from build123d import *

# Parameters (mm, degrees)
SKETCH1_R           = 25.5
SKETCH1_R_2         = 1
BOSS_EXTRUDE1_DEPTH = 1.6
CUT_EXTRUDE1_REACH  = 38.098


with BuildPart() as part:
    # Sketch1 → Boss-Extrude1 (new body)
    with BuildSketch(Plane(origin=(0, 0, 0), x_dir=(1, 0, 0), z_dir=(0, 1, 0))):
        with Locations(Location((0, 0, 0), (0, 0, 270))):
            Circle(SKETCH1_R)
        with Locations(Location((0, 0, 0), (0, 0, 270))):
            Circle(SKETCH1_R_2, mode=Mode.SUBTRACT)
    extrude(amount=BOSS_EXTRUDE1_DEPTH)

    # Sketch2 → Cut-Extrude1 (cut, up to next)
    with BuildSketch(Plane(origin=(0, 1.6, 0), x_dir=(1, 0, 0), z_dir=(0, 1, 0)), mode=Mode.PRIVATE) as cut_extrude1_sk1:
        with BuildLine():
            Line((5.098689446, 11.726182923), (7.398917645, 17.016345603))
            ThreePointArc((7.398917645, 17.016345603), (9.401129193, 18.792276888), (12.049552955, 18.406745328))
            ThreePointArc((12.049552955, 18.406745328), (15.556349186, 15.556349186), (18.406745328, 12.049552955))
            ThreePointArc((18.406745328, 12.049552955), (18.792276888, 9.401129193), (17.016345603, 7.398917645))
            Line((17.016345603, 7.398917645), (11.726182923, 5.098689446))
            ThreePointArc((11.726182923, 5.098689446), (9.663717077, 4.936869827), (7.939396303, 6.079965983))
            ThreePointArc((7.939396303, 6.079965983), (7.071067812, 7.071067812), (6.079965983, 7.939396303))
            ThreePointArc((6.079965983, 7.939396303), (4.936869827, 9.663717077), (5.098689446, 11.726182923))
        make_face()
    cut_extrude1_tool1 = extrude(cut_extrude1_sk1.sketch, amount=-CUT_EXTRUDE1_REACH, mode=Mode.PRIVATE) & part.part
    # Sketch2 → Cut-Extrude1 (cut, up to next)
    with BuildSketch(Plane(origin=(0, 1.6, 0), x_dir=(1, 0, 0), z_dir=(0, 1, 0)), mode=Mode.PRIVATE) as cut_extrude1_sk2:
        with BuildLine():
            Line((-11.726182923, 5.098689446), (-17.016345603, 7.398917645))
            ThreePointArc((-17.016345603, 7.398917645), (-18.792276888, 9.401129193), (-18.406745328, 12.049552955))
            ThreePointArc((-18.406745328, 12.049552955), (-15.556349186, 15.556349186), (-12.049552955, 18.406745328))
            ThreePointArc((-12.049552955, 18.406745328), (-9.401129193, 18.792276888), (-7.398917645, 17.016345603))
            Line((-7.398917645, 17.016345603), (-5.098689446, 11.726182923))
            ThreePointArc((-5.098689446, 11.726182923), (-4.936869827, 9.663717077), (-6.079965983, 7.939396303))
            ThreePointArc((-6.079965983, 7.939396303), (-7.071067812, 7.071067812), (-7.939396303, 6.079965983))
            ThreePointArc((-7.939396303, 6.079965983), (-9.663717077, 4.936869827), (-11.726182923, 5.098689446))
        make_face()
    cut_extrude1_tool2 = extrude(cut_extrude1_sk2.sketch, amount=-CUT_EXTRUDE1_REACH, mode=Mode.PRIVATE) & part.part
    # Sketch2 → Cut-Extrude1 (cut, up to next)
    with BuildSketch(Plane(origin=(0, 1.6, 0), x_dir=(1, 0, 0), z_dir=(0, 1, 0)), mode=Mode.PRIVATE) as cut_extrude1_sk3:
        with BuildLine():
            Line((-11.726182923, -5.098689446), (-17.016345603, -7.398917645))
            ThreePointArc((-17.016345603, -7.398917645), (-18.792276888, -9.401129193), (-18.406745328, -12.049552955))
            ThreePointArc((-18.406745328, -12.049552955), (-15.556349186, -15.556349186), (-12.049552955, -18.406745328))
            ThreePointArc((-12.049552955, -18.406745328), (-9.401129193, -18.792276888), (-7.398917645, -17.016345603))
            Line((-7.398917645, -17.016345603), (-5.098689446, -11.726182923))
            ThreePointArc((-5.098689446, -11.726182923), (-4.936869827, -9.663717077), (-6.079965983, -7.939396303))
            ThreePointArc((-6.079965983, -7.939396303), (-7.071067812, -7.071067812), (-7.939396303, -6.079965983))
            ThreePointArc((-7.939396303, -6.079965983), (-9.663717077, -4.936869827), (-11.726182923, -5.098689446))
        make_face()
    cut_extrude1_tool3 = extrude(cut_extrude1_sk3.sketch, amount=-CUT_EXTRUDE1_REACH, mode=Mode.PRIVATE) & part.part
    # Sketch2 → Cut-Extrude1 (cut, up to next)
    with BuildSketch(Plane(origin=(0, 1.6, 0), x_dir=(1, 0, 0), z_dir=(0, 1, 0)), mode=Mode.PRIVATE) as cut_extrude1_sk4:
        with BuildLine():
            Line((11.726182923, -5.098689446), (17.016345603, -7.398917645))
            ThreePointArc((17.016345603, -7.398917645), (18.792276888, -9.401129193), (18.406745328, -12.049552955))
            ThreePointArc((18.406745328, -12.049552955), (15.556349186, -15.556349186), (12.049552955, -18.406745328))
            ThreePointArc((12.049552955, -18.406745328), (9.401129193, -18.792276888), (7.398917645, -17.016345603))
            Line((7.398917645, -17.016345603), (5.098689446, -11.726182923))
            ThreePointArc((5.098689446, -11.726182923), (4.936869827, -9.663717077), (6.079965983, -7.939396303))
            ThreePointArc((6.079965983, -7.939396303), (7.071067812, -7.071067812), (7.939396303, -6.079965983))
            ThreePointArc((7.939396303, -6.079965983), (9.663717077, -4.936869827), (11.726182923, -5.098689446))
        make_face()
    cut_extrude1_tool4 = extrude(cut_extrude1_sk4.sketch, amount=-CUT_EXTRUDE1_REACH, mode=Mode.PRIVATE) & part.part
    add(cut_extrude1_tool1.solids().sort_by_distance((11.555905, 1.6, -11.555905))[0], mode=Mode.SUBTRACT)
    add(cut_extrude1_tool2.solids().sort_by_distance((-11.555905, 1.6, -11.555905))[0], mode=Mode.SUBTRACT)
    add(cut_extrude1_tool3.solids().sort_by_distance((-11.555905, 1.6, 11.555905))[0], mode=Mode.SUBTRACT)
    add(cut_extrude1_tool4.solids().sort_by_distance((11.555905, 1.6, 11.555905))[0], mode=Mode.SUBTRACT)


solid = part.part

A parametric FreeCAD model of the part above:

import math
import FreeCAD as App
import Part
import Sketcher

V = App.Vector
Q = App.Units.Quantity

doc = App.newDocument("Part")
params = doc.addObject("Spreadsheet::Sheet", "Params")
for row, (alias, value) in enumerate([
    ("sketch1_diameter", "51 mm"),
    ("sketch1_diameter2", "2 mm"),
    ("pad1_length", "1.6 mm"),
    ("sketch2_radius", "10 mm"),
    ("sketch2_radius2", "22 mm"),
    ("sketch3_radius", "10 mm"),
    ("sketch3_radius2", "22 mm"),
    ("sketch4_radius", "22 mm"),
    ("sketch4_radius2", "10 mm"),
    ("sketch5_radius", "10 mm"),
    ("sketch5_radius2", "22 mm"),
], start=1):
    params.set(f"A{row}", alias)
    params.set(f"B{row}", "=" + value)
    params.setAlias(f"B{row}", alias)

body = doc.addObject("PartDesign::Body", "Body")

sketch1 = doc.addObject("Sketcher::SketchObject", "Sketch")
body.addObject(sketch1)
sketch1.AttachmentSupport = (doc.XZ_Plane, [""])
sketch1.MapMode = "FlatFace"
sketch1.addGeometry([
    Part.Circle(V(0, 0, 0), V(0, 0, 1), 25.5),
    Part.Circle(V(0, 0, 0), V(0, 0, 1), 1),
], False)
sketch1.addConstraint([
    Sketcher.Constraint("Coincident", 0, 3, -1, 1),
    Sketcher.Constraint("Coincident", 1, 3, -1, 1),
    Sketcher.Constraint("Diameter", 0, 51.0),
    Sketcher.Constraint("Diameter", 1, 2.0),
])
sketch1.setExpression("Constraints[2]", "Params.sketch1_diameter")
sketch1.setExpression("Constraints[3]", "Params.sketch1_diameter2")
pad1 = doc.addObject("PartDesign::Pad", "Pad")
body.addObject(pad1)
pad1.Profile = sketch1
pad1.setExpression("Length", "Params.pad1_length")
pad1.Reversed = True

sketch2 = doc.addObject("Sketcher::SketchObject", "Sketch001")
body.addObject(sketch2)
sketch2.AttachmentSupport = (doc.XZ_Plane, [""])
sketch2.MapMode = "FlatFace"
sketch2.AttachmentOffset = App.Placement(V(0, 0, -1.6), App.Rotation())
sketch2.addGeometry([
    Part.LineSegment(V(7.4, -17, 0), V(5.1, -11.7, 0)),
    Part.ArcOfCircle(Part.Circle(V(8, -10.5, 0), V(0, 0, 1), 3.2), math.radians(127), math.radians(204)),
    Part.ArcOfCircle(Part.Circle(V(0, 0, 0), V(0, 0, 1), 10), math.radians(-52.56), math.radians(-37.44)),
    Part.ArcOfCircle(Part.Circle(V(10.5, -8, 0), V(0, 0, 1), 3.2), math.radians(66), math.radians(143)),
    Part.LineSegment(V(11.7, -5.1, 0), V(17, -7.4, 0)),
    Part.ArcOfCircle(Part.Circle(V(15.8, -10.3, 0), V(0, 0, 1), 3.2), math.radians(-33), math.radians(66)),
    Part.ArcOfCircle(Part.Circle(V(0, 0, 0), V(0, 0, 1), 22), math.radians(-57), math.radians(-33)),
    Part.ArcOfCircle(Part.Circle(V(10.3, -15.8, 0), V(0, 0, 1), 3.2), math.radians(-156), math.radians(-57)),
], False)
sketch2.addConstraint([
    Sketcher.Constraint("Tangent", 0, 2, 1, 2),
    Sketcher.Constraint("Tangent", 1, 1, 2, 1),
    Sketcher.Constraint("Tangent", 2, 2, 3, 2),
    Sketcher.Constraint("Tangent", 3, 1, 4, 1),
    Sketcher.Constraint("Tangent", 4, 2, 5, 2),
    Sketcher.Constraint("Tangent", 5, 1, 6, 2),
    Sketcher.Constraint("Tangent", 6, 1, 7, 2),
    Sketcher.Constraint("Tangent", 7, 1, 0, 1),
    Sketcher.Constraint("Coincident", 2, 3, -1, 1),
    Sketcher.Constraint("Coincident", 6, 3, -1, 1),
    Sketcher.Constraint("Equal", 1, 3),
    Sketcher.Constraint("Equal", 3, 5),
    Sketcher.Constraint("Equal", 5, 7),
    Sketcher.Constraint("Equal", 0, 4),
    Sketcher.Constraint("Radius", 2, 10.0),
    Sketcher.Constraint("Radius", 6, 22.0),
    Sketcher.Constraint("Angle", 0, Q("113.5 deg")),
    Sketcher.Constraint("Angle", 4, Q("-23.5 deg")),
    Sketcher.Constraint("Radius", 1, 3.175),
    Sketcher.Constraint("DistanceX", 1, 3, 3, 3, 2.449799),
])
sketch2.setExpression("Constraints[14]", "Params.sketch2_radius")
sketch2.setExpression("Constraints[15]", "Params.sketch2_radius2")
pocket1 = doc.addObject("PartDesign::Pocket", "Pocket")
body.addObject(pocket1)
pocket1.Profile = sketch2
pocket1.Type = "UpToFirst"
pocket1.Reversed = True

sketch3 = doc.addObject("Sketcher::SketchObject", "Sketch002")
body.addObject(sketch3)
sketch3.AttachmentSupport = (doc.XZ_Plane, [""])
sketch3.MapMode = "FlatFace"
sketch3.AttachmentOffset = App.Placement(V(0, 0, -1.6), App.Rotation())
sketch3.addGeometry([
    Part.LineSegment(V(-17, -7.4, 0), V(-11.7, -5.1, 0)),
    Part.ArcOfCircle(Part.Circle(V(-10.5, -8, 0), V(0, 0, 1), 3.2), math.radians(37), math.radians(114)),
    Part.ArcOfCircle(Part.Circle(V(0, 0, 0), V(0, 0, 1), 10), math.radians(-142.56), math.radians(-127.44)),
    Part.ArcOfCircle(Part.Circle(V(-8, -10.5, 0), V(0, 0, 1), 3.2), math.radians(-24), math.radians(53)),
    Part.LineSegment(V(-5.1, -11.7, 0), V(-7.4, -17, 0)),
    Part.ArcOfCircle(Part.Circle(V(-10.3, -15.8, 0), V(0, 0, 1), 3.2), math.radians(-123), math.radians(-24)),
    Part.ArcOfCircle(Part.Circle(V(0, 0, 0), V(0, 0, 1), 22), math.radians(-147), math.radians(-123)),
    Part.ArcOfCircle(Part.Circle(V(-15.8, -10.3, 0), V(0, 0, 1), 3.2), math.radians(114), math.radians(213)),
], False)
sketch3.addConstraint([
    Sketcher.Constraint("Tangent", 0, 2, 1, 2),
    Sketcher.Constraint("Tangent", 1, 1, 2, 1),
    Sketcher.Constraint("Tangent", 2, 2, 3, 2),
    Sketcher.Constraint("Tangent", 3, 1, 4, 1),
    Sketcher.Constraint("Tangent", 4, 2, 5, 2),
    Sketcher.Constraint("Tangent", 5, 1, 6, 2),
    Sketcher.Constraint("Tangent", 6, 1, 7, 2),
    Sketcher.Constraint("Tangent", 7, 1, 0, 1),
    Sketcher.Constraint("Coincident", 2, 3, -1, 1),
    Sketcher.Constraint("Coincident", 6, 3, -1, 1),
    Sketcher.Constraint("Equal", 1, 3),
    Sketcher.Constraint("Equal", 3, 5),
    Sketcher.Constraint("Equal", 5, 7),
    Sketcher.Constraint("Equal", 0, 4),
    Sketcher.Constraint("Radius", 2, 10.0),
    Sketcher.Constraint("Radius", 6, 22.0),
    Sketcher.Constraint("Angle", 0, Q("23.5 deg")),
    Sketcher.Constraint("Angle", 4, Q("-113.5 deg")),
    Sketcher.Constraint("Radius", 1, 3.175),
    Sketcher.Constraint("DistanceX", 1, 3, 3, 3, 2.449799),
])
sketch3.setExpression("Constraints[14]", "Params.sketch3_radius")
sketch3.setExpression("Constraints[15]", "Params.sketch3_radius2")
pocket2 = doc.addObject("PartDesign::Pocket", "Pocket001")
body.addObject(pocket2)
pocket2.Profile = sketch3
pocket2.Type = "UpToFirst"
pocket2.Reversed = True

sketch4 = doc.addObject("Sketcher::SketchObject", "Sketch003")
body.addObject(sketch4)
sketch4.AttachmentSupport = (doc.XZ_Plane, [""])
sketch4.MapMode = "FlatFace"
sketch4.AttachmentOffset = App.Placement(V(0, 0, -1.6), App.Rotation())
sketch4.addGeometry([
    Part.LineSegment(V(-11.7, 5.1, 0), V(-17, 7.4, 0)),
    Part.ArcOfCircle(Part.Circle(V(-15.8, 10.3, 0), V(0, 0, 1), 3.2), math.radians(147), math.radians(246)),
    Part.ArcOfCircle(Part.Circle(V(0, 0, 0), V(0, 0, 1), 22), math.radians(123), math.radians(147)),
    Part.ArcOfCircle(Part.Circle(V(-10.3, 15.8, 0), V(0, 0, 1), 3.2), math.radians(24), math.radians(123)),
    Part.LineSegment(V(-7.4, 17, 0), V(-5.1, 11.7, 0)),
    Part.ArcOfCircle(Part.Circle(V(-8, 10.5, 0), V(0, 0, 1), 3.2), math.radians(-53), math.radians(24)),
    Part.ArcOfCircle(Part.Circle(V(0, 0, 0), V(0, 0, 1), 10), math.radians(127.44), math.radians(142.56)),
    Part.ArcOfCircle(Part.Circle(V(-10.5, 8, 0), V(0, 0, 1), 3.2), math.radians(-114), math.radians(-37)),
], False)
sketch4.addConstraint([
    Sketcher.Constraint("Tangent", 0, 2, 1, 2),
    Sketcher.Constraint("Tangent", 1, 1, 2, 2),
    Sketcher.Constraint("Tangent", 2, 1, 3, 2),
    Sketcher.Constraint("Tangent", 3, 1, 4, 1),
    Sketcher.Constraint("Tangent", 4, 2, 5, 2),
    Sketcher.Constraint("Tangent", 5, 1, 6, 1),
    Sketcher.Constraint("Tangent", 6, 2, 7, 2),
    Sketcher.Constraint("Tangent", 7, 1, 0, 1),
    Sketcher.Constraint("Coincident", 2, 3, -1, 1),
    Sketcher.Constraint("Coincident", 6, 3, -1, 1),
    Sketcher.Constraint("Equal", 1, 3),
    Sketcher.Constraint("Equal", 3, 5),
    Sketcher.Constraint("Equal", 5, 7),
    Sketcher.Constraint("Equal", 0, 4),
    Sketcher.Constraint("Radius", 2, 22.0),
    Sketcher.Constraint("Radius", 6, 10.0),
    Sketcher.Constraint("Angle", 0, Q("156.5 deg")),
    Sketcher.Constraint("Angle", 4, Q("-66.5 deg")),
    Sketcher.Constraint("Radius", 1, 3.175),
    Sketcher.Constraint("DistanceX", 7, 3, 5, 3, 2.449799),
])
sketch4.setExpression("Constraints[14]", "Params.sketch4_radius")
sketch4.setExpression("Constraints[15]", "Params.sketch4_radius2")
pocket3 = doc.addObject("PartDesign::Pocket", "Pocket002")
body.addObject(pocket3)
pocket3.Profile = sketch4
pocket3.Type = "UpToFirst"
pocket3.Reversed = True

sketch5 = doc.addObject("Sketcher::SketchObject", "Sketch004")
body.addObject(sketch5)
sketch5.AttachmentSupport = (doc.XZ_Plane, [""])
sketch5.MapMode = "FlatFace"
sketch5.AttachmentOffset = App.Placement(V(0, 0, -1.6), App.Rotation())
sketch5.addGeometry([
    Part.LineSegment(V(17, 7.4, 0), V(11.7, 5.1, 0)),
    Part.ArcOfCircle(Part.Circle(V(10.5, 8, 0), V(0, 0, 1), 3.2), math.radians(-143), math.radians(-66)),
    Part.ArcOfCircle(Part.Circle(V(0, 0, 0), V(0, 0, 1), 10), math.radians(37.44), math.radians(52.56)),
    Part.ArcOfCircle(Part.Circle(V(8, 10.5, 0), V(0, 0, 1), 3.2), math.radians(156), math.radians(233)),
    Part.LineSegment(V(5.1, 11.7, 0), V(7.4, 17, 0)),
    Part.ArcOfCircle(Part.Circle(V(10.3, 15.8, 0), V(0, 0, 1), 3.2), math.radians(57), math.radians(156)),
    Part.ArcOfCircle(Part.Circle(V(0, 0, 0), V(0, 0, 1), 22), math.radians(33), math.radians(57)),
    Part.ArcOfCircle(Part.Circle(V(15.8, 10.3, 0), V(0, 0, 1), 3.2), math.radians(-66), math.radians(33)),
], False)
sketch5.addConstraint([
    Sketcher.Constraint("Tangent", 0, 2, 1, 2),
    Sketcher.Constraint("Tangent", 1, 1, 2, 1),
    Sketcher.Constraint("Tangent", 2, 2, 3, 2),
    Sketcher.Constraint("Tangent", 3, 1, 4, 1),
    Sketcher.Constraint("Tangent", 4, 2, 5, 2),
    Sketcher.Constraint("Tangent", 5, 1, 6, 2),
    Sketcher.Constraint("Tangent", 6, 1, 7, 2),
    Sketcher.Constraint("Tangent", 7, 1, 0, 1),
    Sketcher.Constraint("Coincident", 2, 3, -1, 1),
    Sketcher.Constraint("Coincident", 6, 3, -1, 1),
    Sketcher.Constraint("Equal", 1, 3),
    Sketcher.Constraint("Equal", 3, 5),
    Sketcher.Constraint("Equal", 5, 7),
    Sketcher.Constraint("Equal", 0, 4),
    Sketcher.Constraint("Radius", 2, 10.0),
    Sketcher.Constraint("Radius", 6, 22.0),
    Sketcher.Constraint("Angle", 0, Q("-156.5 deg")),
    Sketcher.Constraint("Angle", 4, Q("66.5 deg")),
    Sketcher.Constraint("Radius", 1, 3.175),
    Sketcher.Constraint("DistanceX", 3, 3, 1, 3, 2.449799),
])
sketch5.setExpression("Constraints[14]", "Params.sketch5_radius")
sketch5.setExpression("Constraints[15]", "Params.sketch5_radius2")
pocket4 = doc.addObject("PartDesign::Pocket", "Pocket003")
body.addObject(pocket4)
pocket4.Profile = sketch5
pocket4.Type = "UpToFirst"
pocket4.Reversed = True

doc.recompute()
